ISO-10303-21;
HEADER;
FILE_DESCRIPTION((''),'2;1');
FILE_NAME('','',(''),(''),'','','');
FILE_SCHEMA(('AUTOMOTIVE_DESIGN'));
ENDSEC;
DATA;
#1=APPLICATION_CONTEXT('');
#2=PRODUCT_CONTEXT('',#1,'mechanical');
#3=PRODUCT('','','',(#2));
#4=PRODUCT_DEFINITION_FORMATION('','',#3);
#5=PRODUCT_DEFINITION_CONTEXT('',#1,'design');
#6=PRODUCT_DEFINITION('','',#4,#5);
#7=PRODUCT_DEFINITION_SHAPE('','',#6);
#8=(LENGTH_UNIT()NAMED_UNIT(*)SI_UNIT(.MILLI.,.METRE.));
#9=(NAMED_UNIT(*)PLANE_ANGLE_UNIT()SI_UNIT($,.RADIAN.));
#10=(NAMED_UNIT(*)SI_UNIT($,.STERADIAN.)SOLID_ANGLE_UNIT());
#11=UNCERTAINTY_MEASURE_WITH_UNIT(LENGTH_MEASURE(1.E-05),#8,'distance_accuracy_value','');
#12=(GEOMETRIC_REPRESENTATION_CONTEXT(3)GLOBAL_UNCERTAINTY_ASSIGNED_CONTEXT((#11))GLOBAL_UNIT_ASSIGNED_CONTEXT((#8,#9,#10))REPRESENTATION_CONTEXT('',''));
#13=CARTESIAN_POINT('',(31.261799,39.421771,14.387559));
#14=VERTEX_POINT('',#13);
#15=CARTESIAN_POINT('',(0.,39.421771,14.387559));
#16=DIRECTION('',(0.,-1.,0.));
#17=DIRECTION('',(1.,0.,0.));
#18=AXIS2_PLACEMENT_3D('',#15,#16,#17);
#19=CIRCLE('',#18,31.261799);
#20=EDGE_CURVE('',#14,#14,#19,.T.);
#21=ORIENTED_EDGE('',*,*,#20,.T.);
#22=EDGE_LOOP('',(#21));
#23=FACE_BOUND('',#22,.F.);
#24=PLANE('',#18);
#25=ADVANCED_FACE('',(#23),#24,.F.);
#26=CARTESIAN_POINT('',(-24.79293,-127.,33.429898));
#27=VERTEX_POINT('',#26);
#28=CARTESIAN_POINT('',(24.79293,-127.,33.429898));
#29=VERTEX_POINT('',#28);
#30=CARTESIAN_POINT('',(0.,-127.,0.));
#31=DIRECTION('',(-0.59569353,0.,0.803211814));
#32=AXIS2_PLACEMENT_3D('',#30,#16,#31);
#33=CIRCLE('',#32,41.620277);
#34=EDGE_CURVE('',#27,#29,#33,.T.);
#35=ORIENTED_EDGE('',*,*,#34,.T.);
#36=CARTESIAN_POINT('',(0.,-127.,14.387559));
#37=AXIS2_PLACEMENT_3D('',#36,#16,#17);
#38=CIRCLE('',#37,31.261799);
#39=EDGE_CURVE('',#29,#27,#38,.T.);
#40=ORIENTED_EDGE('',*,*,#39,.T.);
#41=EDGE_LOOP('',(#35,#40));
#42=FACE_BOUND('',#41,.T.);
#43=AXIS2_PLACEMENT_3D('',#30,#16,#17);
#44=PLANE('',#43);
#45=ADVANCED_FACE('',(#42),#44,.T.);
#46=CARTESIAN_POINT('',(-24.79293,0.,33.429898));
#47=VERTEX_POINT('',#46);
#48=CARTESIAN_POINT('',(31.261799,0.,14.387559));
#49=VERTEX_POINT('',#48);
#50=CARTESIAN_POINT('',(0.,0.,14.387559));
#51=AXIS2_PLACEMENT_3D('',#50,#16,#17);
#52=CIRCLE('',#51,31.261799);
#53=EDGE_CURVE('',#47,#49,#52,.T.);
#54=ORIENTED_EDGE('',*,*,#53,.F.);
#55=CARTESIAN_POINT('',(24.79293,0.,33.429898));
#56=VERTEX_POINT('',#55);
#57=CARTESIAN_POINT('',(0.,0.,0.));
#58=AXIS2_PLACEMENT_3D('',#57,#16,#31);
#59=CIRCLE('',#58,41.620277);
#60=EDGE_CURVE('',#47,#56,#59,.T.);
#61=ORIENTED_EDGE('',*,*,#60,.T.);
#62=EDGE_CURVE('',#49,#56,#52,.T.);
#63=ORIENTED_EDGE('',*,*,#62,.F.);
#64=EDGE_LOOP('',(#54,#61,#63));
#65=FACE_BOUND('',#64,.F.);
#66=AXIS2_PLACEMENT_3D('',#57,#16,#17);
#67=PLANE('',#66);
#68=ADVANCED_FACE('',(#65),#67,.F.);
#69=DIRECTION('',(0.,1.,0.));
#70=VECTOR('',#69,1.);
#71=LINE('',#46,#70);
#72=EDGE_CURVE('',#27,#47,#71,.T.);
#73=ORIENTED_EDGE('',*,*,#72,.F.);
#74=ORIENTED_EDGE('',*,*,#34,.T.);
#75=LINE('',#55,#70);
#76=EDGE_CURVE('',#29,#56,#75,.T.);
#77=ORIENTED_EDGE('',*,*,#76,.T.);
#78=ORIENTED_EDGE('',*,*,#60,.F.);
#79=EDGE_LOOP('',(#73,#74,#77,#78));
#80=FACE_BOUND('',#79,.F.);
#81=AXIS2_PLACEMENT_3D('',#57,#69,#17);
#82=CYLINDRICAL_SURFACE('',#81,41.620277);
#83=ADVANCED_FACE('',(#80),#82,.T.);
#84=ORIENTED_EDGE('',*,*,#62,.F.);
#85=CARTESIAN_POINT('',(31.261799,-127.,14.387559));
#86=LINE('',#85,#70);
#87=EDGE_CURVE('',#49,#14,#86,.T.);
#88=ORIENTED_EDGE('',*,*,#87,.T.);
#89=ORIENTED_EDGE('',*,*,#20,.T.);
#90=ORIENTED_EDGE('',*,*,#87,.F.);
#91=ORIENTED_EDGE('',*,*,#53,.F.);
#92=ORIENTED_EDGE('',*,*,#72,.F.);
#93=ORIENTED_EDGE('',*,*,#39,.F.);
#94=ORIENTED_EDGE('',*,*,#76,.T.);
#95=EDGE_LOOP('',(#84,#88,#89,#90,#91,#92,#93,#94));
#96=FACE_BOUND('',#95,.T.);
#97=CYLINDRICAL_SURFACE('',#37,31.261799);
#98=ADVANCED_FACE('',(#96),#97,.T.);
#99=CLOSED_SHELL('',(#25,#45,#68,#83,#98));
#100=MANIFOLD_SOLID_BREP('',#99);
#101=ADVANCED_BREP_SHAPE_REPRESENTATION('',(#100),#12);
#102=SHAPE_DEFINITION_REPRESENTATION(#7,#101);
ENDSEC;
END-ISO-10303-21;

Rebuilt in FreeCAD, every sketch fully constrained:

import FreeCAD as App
import Part
import Sketcher
from FreeCAD import Vector
Q = App.Units.Quantity

doc = App.newDocument("Part")
body = doc.addObject("PartDesign::Body", "Body")

sketch1 = body.newObject("Sketcher::SketchObject", "Sketch")
sketch1.AttachmentSupport = (doc.getObject("XZ_Plane"), [""])
sketch1.MapMode = "FlatFace"
sketch1.addGeometry(Part.Circle(Vector(0, 0, 0), Vector(0, 0, 1), 42), False)
sketch1.addConstraint([
    Sketcher.Constraint("Coincident", 0, 3, -1, 1),
    Sketcher.Constraint("Diameter", 0, 83.240554),
])
pad1 = body.newObject("PartDesign::Pad", "Pad")
pad1.Profile = sketch1
pad1.Length = Q("5 in")

sketch2 = body.newObject("Sketcher::SketchObject", "Sketch001")
sketch2.AttachmentSupport = (doc.getObject("XZ_Plane"), [""])
sketch2.MapMode = "FlatFace"
sketch2.AttachmentOffset = App.Placement(Vector(0, 0, 5 * 25.4), App.Rotation())
sketch2.addGeometry(Part.Circle(Vector(0, 14, 0), Vector(0, 0, 1), 31), False)
sketch2.addConstraint([
    Sketcher.Constraint("PointOnObject", 0, 3, -2),
    Sketcher.Constraint("Diameter", 0, 62.523597),
    Sketcher.Constraint("DistanceY", -1, 1, 0, 3, 14.387559),
])
pad2 = body.newObject("PartDesign::Pad", "Pad001")
pad2.Profile = sketch2
pad2.Length = 166.421771
pad2.Reversed = True

doc.recompute()
